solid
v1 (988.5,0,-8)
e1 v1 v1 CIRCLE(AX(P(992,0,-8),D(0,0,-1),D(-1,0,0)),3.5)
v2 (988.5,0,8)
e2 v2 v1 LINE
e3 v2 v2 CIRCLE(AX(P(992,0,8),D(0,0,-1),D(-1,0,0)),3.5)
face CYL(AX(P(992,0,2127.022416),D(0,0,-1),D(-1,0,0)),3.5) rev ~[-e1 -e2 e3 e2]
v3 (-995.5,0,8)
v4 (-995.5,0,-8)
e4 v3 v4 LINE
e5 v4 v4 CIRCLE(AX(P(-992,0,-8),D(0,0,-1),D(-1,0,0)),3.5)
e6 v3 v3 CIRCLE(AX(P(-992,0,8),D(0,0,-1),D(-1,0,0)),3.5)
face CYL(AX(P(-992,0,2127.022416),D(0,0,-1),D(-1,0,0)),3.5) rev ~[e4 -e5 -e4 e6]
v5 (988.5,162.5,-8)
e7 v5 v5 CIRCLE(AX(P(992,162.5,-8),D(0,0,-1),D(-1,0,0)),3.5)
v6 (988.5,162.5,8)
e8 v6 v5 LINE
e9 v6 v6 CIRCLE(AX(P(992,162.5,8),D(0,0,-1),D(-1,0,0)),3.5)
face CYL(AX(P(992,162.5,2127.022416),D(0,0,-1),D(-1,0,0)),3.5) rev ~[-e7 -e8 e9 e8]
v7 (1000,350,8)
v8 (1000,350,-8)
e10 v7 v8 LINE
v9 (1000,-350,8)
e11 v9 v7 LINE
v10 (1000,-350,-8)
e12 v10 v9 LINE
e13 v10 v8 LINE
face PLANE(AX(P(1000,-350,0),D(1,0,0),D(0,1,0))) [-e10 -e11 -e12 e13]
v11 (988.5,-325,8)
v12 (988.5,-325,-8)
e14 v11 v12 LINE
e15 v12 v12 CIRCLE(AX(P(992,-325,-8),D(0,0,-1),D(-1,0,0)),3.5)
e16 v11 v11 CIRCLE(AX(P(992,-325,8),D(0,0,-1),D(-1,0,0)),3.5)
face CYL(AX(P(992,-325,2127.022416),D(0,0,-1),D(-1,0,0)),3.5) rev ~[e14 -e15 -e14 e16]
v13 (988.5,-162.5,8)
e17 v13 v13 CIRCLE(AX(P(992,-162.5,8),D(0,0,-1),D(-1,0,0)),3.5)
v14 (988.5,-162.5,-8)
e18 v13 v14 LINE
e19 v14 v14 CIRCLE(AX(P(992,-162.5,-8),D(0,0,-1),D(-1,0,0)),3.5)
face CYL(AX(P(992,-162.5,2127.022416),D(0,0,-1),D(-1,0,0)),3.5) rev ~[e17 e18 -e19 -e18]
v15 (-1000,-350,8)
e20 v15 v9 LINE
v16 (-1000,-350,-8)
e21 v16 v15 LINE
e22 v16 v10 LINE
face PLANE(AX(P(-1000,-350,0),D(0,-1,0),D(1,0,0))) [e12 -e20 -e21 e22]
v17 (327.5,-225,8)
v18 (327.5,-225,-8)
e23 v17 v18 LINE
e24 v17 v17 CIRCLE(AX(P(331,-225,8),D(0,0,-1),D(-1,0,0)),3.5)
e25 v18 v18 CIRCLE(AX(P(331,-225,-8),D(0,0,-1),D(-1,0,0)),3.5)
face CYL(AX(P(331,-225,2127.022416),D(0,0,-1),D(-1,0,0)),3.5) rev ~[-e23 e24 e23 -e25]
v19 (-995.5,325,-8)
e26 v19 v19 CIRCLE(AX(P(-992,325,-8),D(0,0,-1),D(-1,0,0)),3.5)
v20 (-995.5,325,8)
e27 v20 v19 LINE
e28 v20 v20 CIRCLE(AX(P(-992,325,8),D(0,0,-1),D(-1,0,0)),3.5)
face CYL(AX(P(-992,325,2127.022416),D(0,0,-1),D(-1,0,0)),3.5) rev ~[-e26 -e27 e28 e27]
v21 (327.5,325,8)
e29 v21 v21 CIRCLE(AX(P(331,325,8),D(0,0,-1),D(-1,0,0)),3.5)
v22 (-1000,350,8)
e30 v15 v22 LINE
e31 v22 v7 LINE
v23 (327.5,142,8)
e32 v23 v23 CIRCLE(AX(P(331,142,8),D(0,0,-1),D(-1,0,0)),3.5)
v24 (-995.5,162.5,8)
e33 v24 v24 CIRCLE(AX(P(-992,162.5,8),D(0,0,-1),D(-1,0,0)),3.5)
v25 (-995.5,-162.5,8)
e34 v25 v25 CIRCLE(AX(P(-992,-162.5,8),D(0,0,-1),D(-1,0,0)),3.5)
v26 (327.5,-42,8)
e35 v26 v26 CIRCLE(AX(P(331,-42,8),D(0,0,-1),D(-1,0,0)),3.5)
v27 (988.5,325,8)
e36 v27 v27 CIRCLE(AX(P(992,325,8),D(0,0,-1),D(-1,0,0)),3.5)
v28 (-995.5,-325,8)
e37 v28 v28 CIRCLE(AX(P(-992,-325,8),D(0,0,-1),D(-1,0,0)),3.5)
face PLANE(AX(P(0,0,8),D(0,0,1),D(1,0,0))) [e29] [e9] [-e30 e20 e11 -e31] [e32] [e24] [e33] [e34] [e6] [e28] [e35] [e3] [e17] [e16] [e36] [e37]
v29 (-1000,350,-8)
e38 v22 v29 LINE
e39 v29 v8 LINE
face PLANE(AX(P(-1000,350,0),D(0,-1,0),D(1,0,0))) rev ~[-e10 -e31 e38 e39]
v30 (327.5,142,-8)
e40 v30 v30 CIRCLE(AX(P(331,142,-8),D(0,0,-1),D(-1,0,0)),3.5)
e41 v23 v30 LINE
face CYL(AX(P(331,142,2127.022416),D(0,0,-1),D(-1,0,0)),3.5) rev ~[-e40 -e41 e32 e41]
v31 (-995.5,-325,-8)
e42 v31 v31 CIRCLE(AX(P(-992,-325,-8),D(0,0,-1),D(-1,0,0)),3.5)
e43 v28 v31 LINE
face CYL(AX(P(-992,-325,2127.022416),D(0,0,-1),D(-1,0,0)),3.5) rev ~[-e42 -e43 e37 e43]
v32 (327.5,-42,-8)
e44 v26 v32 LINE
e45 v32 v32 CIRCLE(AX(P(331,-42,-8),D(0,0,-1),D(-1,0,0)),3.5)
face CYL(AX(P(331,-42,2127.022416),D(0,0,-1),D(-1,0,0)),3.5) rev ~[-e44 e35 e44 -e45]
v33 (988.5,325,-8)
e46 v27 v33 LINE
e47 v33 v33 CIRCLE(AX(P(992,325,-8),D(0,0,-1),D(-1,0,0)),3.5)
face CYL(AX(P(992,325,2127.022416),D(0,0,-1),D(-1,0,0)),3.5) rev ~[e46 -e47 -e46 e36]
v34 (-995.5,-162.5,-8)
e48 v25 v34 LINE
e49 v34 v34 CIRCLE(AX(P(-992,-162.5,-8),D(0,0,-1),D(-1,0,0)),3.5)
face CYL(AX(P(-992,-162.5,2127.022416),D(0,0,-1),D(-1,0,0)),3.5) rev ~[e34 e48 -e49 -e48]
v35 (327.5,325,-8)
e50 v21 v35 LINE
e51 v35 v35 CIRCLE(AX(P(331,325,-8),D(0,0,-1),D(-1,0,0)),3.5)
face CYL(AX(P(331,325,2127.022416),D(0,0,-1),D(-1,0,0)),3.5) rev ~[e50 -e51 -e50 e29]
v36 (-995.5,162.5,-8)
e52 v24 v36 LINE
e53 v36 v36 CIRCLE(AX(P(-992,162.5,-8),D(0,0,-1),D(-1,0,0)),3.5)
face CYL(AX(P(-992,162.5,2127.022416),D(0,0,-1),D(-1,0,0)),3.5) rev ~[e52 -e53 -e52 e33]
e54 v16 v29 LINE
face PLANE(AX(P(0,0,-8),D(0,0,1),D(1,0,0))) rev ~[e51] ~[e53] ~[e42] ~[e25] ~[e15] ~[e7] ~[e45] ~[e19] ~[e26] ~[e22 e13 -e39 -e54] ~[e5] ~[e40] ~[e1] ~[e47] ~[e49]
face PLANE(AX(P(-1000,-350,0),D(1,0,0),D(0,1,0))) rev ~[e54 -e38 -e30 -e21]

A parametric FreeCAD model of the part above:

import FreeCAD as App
import Part
import Sketcher


def add_polygon(sketch, points):
    """Adds a closed chain of lines whose ends are joined by coincident constraints."""
    first, n = sketch.GeometryCount, len(points)
    for a, b in zip(points, points[1:] + points[:1]):
        sketch.addGeometry(Part.LineSegment(App.Vector(*a, 0), App.Vector(*b, 0)), False)
    for i in range(n):
        sketch.addConstraint(Sketcher.Constraint("Coincident", first + i, 2, first + (i + 1) % n, 1))

doc = App.newDocument("Part")
body = doc.addObject("PartDesign::Body", "Body")

# Sketch on XY plane
sketch1 = body.newObject("Sketcher::SketchObject", "Sketch")
sketch1.AttachmentSupport = (doc.getObject("XY_Plane"), [""])
sketch1.MapMode = "FlatFace"
add_polygon(sketch1, [(-1000, 350), (-1000, -350), (1000, -350), (1000, 350)])  # lines 0-3
sketch1.addConstraint([
    Sketcher.Constraint("Vertical", 0),
    Sketcher.Constraint("Horizontal", 1),
    Sketcher.Constraint("Vertical", 2),
    Sketcher.Constraint("Horizontal", 3),
    Sketcher.Constraint("Symmetric", 0, 2, 2, 2, -1, 1),
    Sketcher.Constraint("DistanceX", 1, 1, 1, 2, 2000.0),
    Sketcher.Constraint("DistanceY", 0, 2, 0, 1, 700.0),
])
pad1 = body.newObject("PartDesign::Pad", "Pad")
pad1.Profile = sketch1
pad1.Length = 16
pad1.Midplane = True

# Sketch on XY plane
sketch2 = body.newObject("Sketcher::SketchObject", "Sketch001")
sketch2.AttachmentSupport = (doc.getObject("XY_Plane"), [""])
sketch2.MapMode = "FlatFace"
sketch2.AttachmentOffset = App.Placement(App.Vector(0, 0, 8), App.Rotation())
sketch2.addGeometry([
    Part.Circle(App.Vector(-992, 325, 0), App.Vector(0, 0, 1), 3.5),  # 0
    Part.Circle(App.Vector(-992, 162.5, 0), App.Vector(0, 0, 1), 3.5),  # 1
    Part.Circle(App.Vector(-992, 0, 0), App.Vector(0, 0, 1), 3.5),  # 2
    Part.Circle(App.Vector(-992, -162.5, 0), App.Vector(0, 0, 1), 3.5),  # 3
    Part.Circle(App.Vector(-992, -325, 0), App.Vector(0, 0, 1), 3.5),  # 4
    Part.Circle(App.Vector(992, 325, 0), App.Vector(0, 0, 1), 3.5),  # 5
    Part.Circle(App.Vector(992, 162.5, 0), App.Vector(0, 0, 1), 3.5),  # 6
    Part.Circle(App.Vector(992, 0, 0), App.Vector(0, 0, 1), 3.5),  # 7
    Part.Circle(App.Vector(992, -162.5, 0), App.Vector(0, 0, 1), 3.5),  # 8
    Part.Circle(App.Vector(992, -325, 0), App.Vector(0, 0, 1), 3.5),  # 9
    Part.Circle(App.Vector(331, -225, 0), App.Vector(0, 0, 1), 3.5),  # 10
    Part.Circle(App.Vector(331, -42, 0), App.Vector(0, 0, 1), 3.5),  # 11
    Part.Circle(App.Vector(331, 142, 0), App.Vector(0, 0, 1), 3.5),  # 12
    Part.Circle(App.Vector(331, 325, 0), App.Vector(0, 0, 1), 3.5),  # 13
], False)
sketch2.addConstraint([
    Sketcher.Constraint("Equal", 0, 1),
    Sketcher.Constraint("Equal", 1, 2),
    Sketcher.Constraint("Equal", 2, 3),
    Sketcher.Constraint("Equal", 3, 4),
    Sketcher.Constraint("Equal", 4, 5),
    Sketcher.Constraint("Equal", 5, 6),
    Sketcher.Constraint("Equal", 6, 7),
    Sketcher.Constraint("Equal", 7, 8),
    Sketcher.Constraint("Equal", 8, 9),
    Sketcher.Constraint("Equal", 9, 10),
    Sketcher.Constraint("Equal", 10, 11),
    Sketcher.Constraint("Equal", 11, 12),
    Sketcher.Constraint("Equal", 12, 13),
    Sketcher.Constraint("Symmetric", 4, 3, 5, 3, -1, 1),
    Sketcher.Constraint("Symmetric", 3, 3, 6, 3, -1, 1),
    Sketcher.Constraint("Symmetric", 2, 3, 7, 3, -1, 1),
    Sketcher.Constraint("Symmetric", 1, 3, 8, 3, -1, 1),
    Sketcher.Constraint("Symmetric", 0, 3, 9, 3, -1, 1),
    Sketcher.Constraint("Symmetric", 0, 3, 5, 3, -2),
    Sketcher.Constraint("Symmetric", 1, 3, 6, 3, -2),
    Sketcher.Constraint("PointOnObject", 2, 3, -1),
    Sketcher.Constraint("Horizontal", 5, 3, 13, 3),
    Sketcher.Constraint("Vertical", 0, 3, 1, 3),
    Sketcher.Constraint("Vertical", 1, 3, 2, 3),
    Sketcher.Constraint("Vertical", 10, 3, 11, 3),
    Sketcher.Constraint("Vertical", 11, 3, 12, 3),
    Sketcher.Constraint("Vertical", 12, 3, 13, 3),
    Sketcher.Constraint("Diameter", 0, 7.0),
    Sketcher.Constraint("DistanceX", 0, 3, -1, 1, 992.0),
    Sketcher.Constraint("DistanceY", -1, 1, 0, 3, 325.0),
    Sketcher.Constraint("DistanceX", -1, 1, 10, 3, 331.0),
    Sketcher.Constraint("DistanceY", 10, 3, -1, 1, 225.0),
    Sketcher.Constraint("DistanceY", 11, 3, -1, 1, 42.0),
    Sketcher.Constraint("DistanceY", -1, 1, 12, 3, 142.0),
    Sketcher.Constraint("DistanceY", 3, 3, 1, 3, 325.0),
])
doc.recompute()
hole = body.newObject("PartDesign::Hole", "Hole")
hole.Profile = sketch2
hole.ThreadType = "None"
hole.Diameter = 7
hole.DepthType = "ThroughAll"

doc.recompute()
